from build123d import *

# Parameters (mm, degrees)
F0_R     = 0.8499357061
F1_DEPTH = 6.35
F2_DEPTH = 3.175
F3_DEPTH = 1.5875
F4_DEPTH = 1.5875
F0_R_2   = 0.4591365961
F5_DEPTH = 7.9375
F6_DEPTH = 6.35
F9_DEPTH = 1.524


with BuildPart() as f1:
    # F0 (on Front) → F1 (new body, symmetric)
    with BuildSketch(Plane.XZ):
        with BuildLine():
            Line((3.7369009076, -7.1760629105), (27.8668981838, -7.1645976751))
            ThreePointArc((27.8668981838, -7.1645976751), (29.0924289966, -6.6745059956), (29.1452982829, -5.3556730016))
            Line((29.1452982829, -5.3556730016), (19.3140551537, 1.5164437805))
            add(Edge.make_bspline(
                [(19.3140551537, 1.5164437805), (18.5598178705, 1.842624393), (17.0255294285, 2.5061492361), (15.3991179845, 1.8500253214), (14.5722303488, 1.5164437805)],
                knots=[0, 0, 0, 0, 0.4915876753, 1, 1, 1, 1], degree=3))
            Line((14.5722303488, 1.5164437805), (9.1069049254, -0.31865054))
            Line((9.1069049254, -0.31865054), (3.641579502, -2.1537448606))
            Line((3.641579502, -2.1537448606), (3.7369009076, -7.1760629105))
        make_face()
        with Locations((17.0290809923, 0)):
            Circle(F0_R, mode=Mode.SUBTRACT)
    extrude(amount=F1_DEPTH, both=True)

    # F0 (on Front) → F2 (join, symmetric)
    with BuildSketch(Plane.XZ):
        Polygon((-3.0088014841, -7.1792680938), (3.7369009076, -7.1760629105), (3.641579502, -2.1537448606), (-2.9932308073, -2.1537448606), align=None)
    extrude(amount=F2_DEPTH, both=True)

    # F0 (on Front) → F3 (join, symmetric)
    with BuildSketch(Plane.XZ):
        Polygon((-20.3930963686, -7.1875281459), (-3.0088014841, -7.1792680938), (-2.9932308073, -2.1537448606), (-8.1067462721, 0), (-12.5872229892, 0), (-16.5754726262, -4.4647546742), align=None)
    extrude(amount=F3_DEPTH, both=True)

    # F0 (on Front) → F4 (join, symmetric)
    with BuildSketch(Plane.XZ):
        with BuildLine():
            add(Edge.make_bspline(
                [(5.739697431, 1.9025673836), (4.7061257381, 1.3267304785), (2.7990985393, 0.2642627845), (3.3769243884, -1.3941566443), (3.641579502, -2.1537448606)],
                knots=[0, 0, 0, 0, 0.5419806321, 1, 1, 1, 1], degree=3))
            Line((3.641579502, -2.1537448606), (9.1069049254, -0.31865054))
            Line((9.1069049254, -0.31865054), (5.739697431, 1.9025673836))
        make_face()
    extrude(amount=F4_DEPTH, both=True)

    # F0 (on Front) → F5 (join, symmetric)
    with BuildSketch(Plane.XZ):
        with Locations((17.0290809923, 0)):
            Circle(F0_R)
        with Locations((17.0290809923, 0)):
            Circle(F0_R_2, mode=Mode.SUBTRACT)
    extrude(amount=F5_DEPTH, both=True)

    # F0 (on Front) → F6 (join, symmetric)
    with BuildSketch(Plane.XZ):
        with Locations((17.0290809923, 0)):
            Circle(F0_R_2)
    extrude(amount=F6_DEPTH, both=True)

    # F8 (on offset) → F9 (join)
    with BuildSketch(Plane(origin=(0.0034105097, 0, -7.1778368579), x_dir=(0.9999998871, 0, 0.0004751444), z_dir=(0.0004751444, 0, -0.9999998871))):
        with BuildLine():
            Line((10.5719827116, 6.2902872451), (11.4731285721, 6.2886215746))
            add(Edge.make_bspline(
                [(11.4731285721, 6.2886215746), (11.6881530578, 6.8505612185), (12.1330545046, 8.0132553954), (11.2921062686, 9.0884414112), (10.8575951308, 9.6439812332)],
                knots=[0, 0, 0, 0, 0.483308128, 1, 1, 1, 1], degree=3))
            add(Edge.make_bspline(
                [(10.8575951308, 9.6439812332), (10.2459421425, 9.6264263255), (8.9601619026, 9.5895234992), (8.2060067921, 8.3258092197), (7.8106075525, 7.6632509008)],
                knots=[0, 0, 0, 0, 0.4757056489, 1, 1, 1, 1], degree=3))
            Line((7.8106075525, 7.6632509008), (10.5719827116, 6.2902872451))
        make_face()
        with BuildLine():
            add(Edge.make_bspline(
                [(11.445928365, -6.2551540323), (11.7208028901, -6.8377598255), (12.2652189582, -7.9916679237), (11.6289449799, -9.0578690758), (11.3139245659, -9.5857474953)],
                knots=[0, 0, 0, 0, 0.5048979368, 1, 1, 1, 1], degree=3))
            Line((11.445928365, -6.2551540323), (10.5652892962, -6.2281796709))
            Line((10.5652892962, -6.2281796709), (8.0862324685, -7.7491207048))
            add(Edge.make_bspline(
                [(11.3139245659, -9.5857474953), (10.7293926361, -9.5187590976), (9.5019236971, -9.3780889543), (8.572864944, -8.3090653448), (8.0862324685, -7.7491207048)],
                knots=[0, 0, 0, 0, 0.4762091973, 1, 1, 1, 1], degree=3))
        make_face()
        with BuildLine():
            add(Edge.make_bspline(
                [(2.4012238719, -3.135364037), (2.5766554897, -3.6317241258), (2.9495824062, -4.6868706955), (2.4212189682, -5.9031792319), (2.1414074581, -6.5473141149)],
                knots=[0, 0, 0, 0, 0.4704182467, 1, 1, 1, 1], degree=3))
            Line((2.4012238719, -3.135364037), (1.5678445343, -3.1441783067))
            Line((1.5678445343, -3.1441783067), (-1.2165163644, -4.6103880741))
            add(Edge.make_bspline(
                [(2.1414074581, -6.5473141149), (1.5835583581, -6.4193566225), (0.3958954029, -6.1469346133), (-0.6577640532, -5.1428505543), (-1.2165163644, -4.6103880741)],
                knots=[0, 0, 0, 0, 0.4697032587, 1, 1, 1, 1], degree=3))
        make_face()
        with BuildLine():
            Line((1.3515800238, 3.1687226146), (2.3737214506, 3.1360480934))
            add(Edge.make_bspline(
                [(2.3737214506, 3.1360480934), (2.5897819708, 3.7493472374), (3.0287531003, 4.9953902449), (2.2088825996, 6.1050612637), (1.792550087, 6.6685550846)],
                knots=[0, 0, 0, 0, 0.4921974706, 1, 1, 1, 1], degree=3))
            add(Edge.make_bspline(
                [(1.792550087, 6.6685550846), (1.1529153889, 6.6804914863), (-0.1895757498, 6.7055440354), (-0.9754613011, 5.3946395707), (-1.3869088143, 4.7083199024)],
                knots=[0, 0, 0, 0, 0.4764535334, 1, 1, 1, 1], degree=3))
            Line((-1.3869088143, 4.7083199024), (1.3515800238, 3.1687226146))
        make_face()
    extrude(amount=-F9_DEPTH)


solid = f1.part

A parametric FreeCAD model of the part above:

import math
import FreeCAD as App
import Part
import Sketcher
from FreeCAD import Vector
Q = App.Units.Quantity


def add_polygon(sketch, points):
    """Adds a closed chain of lines whose ends are joined by coincident constraints."""
    first, n = sketch.GeometryCount, len(points)
    for a, b in zip(points, points[1:] + points[:1]):
        sketch.addGeometry(Part.LineSegment(App.Vector(*a, 0), App.Vector(*b, 0)), False)
    for i in range(n):
        sketch.addConstraint(Sketcher.Constraint("Coincident", first + i, 2, first + (i + 1) % n, 1))

doc = App.newDocument("Part")
body = doc.addObject("PartDesign::Body", "Body")

# Sketch on XZ plane
sketch1 = doc.addObject("Sketcher::SketchObject", "Sketch")
body.addObject(sketch1)
sketch1.AttachmentSupport = (doc.XZ_Plane, [""])
sketch1.MapMode = "FlatFace"
sketch1.addGeometry(Part.LineSegment(Vector(3.736901, -7.176063, 0), Vector(27.866898, -7.164598, 0)), False)
sketch1.addGeometry(Part.ArcOfCircle(Part.Circle(Vector(28.101661, -5.974312, 0), Vector(0, 0, 1), 1.213216), math.radians(-101.15736), math.radians(30.658266)), False)
sketch1.addGeometry(Part.LineSegment(Vector(29.145298, -5.355673, 0), Vector(19.314055, 1.516444, 0)), False)
sketch1.addGeometry(Part.BSplineCurve([Vector(19.314055, 1.516444, 0), Vector(18.559818, 1.842624, 0), Vector(17.025529, 2.506149, 0), Vector(15.399118, 1.850025, 0), Vector(14.57223, 1.516444, 0)], [4, 1, 4], [0, 0.491587675, 1], False, 3, [1, 1, 1, 1, 1], False), False)
sketch1.addGeometry(Part.LineSegment(Vector(14.57223, 1.516444, 0), Vector(9.106905, -0.318651, 0)), False)
sketch1.addGeometry(Part.LineSegment(Vector(9.106905, -0.318651, 0), Vector(3.64158, -2.153745, 0)), False)
sketch1.addGeometry(Part.LineSegment(Vector(3.64158, -2.153745, 0), Vector(3.736901, -7.176063, 0)), False)
sketch1.addGeometry(Part.Circle(Vector(17.029081, 0, 0), Vector(0, 0, 1), 0.849936), False)
sketch1.addConstraint(Sketcher.Constraint("Block", 3))
sketch1.addConstraint(Sketcher.Constraint("Coincident", 0, 2, 1, 1))
sketch1.addConstraint(Sketcher.Constraint("Coincident", 1, 2, 2, 1))
sketch1.addConstraint(Sketcher.Constraint("Coincident", 2, 2, 3, 1))
sketch1.addConstraint(Sketcher.Constraint("Coincident", 3, 2, 4, 1))
sketch1.addConstraint(Sketcher.Constraint("Coincident", 4, 2, 5, 1))
sketch1.addConstraint(Sketcher.Constraint("Coincident", 5, 2, 6, 1))
sketch1.addConstraint(Sketcher.Constraint("Coincident", 6, 2, 0, 1))
sketch1.addConstraint(Sketcher.Constraint("PointOnObject", 7, 3, -1))
sketch1.addConstraint(Sketcher.Constraint("Distance", 0, Q("0.95 in")))
sketch1.addConstraint(Sketcher.Constraint("Diameter", 7, Q("1.699871 mm")))
sketch1.addConstraint(Sketcher.Constraint("Radius", 1, Q("1.213216 mm")))
sketch1.addConstraint(Sketcher.Constraint("DistanceX", -1, 1, 0, 2, Q("27.866898 mm")))
sketch1.addConstraint(Sketcher.Constraint("DistanceX", -1, 1, 1, 2, Q("29.145298 mm")))
sketch1.addConstraint(Sketcher.Constraint("DistanceX", 5, 2, 7, 3, Q("13.387501 mm")))
sketch1.addConstraint(Sketcher.Constraint("Distance", 2, Q("11.994971 mm")))
sketch1.addConstraint(Sketcher.Constraint("DistanceX", -1, 1, 1, 3, Q("28.101661 mm")))
sketch1.addConstraint(Sketcher.Constraint("DistanceX", -1, 1, 7, 3, Q("17.029081 mm")))
sketch1.addConstraint(Sketcher.Constraint("DistanceY", 4, 2, -1, 1, Q("0.318651 mm")))
sketch1.addConstraint(Sketcher.Constraint("DistanceX", 4, 2, 2, 2, Q("10.20715 mm")))
sketch1.addConstraint(Sketcher.Constraint("DistanceY", 5, 2, 2, 2, Q("3.670189 mm")))
sketch1.addConstraint(Sketcher.Constraint("DistanceY", 6, 2, 5, 2, Q("5.022318 mm")))
pad1 = doc.addObject("PartDesign::Pad", "Pad")
body.addObject(pad1)
pad1.Profile = sketch1
pad1.Length = Q("0.5 in")
pad1.Midplane = True

# Sketch on XZ plane
sketch2 = doc.addObject("Sketcher::SketchObject", "Sketch001")
body.addObject(sketch2)
sketch2.AttachmentSupport = (doc.XZ_Plane, [""])
sketch2.MapMode = "FlatFace"
add_polygon(sketch2, [(-3.008801, -7.179268), (3.736901, -7.176063), (3.64158, -2.153745), (-2.993231, -2.153745)])  # lines 0-3
sketch2.addConstraint(Sketcher.Constraint("Horizontal", 2))
sketch2.addConstraint(Sketcher.Constraint("DistanceX", 2, 2, 2, 1, Q("6.63481 mm")))
sketch2.addConstraint(Sketcher.Constraint("DistanceX", -1, 1, 0, 2, Q("3.736901 mm")))
sketch2.addConstraint(Sketcher.Constraint("DistanceX", 3, 2, -1, 1, Q("3.008801 mm")))
sketch2.addConstraint(Sketcher.Constraint("DistanceX", -1, 1, 1, 2, Q("3.64158 mm")))
sketch2.addConstraint(Sketcher.Constraint("DistanceY", 3, 2, -1, 1, Q("7.179268 mm")))
sketch2.addConstraint(Sketcher.Constraint("DistanceY", 0, 2, 1, 2, Q("5.022318 mm")))
sketch2.addConstraint(Sketcher.Constraint("Distance", 3, Q("5.025547 mm")))
pad2 = doc.addObject("PartDesign::Pad", "Pad001")
body.addObject(pad2)
pad2.Profile = sketch2
pad2.Length = Q("0.25 in")
pad2.Midplane = True

# Sketch on XZ plane
sketch3 = doc.addObject("Sketcher::SketchObject", "Sketch002")
body.addObject(sketch3)
sketch3.AttachmentSupport = (doc.XZ_Plane, [""])
sketch3.MapMode = "FlatFace"
add_polygon(sketch3, [(-20.393096, -7.187528), (-3.008801, -7.179268), (-2.993231, -2.153745), (-8.106746, 0), (-12.587223, 0), (-16.575473, -4.464755)])  # lines 0-5
sketch3.addConstraint(Sketcher.Constraint("Horizontal", 3))
sketch3.addConstraint(Sketcher.Constraint("PointOnObject", 2, 2, -1))
sketch3.addConstraint(Sketcher.Constraint("DistanceX", 5, 2, 4, 2, Q("0.1503001 in")))
sketch3.addConstraint(Sketcher.Constraint("DistanceX", 0, 2, -1, 1, Q("3.008801 mm")))
sketch3.addConstraint(Sketcher.Constraint("Distance", 5, Q("4.689109 mm")))
sketch3.addConstraint(Sketcher.Constraint("DistanceX", 3, 2, 3, 1, Q("4.480477 mm")))
sketch3.addConstraint(Sketcher.Constraint("DistanceY", 0, 2, -1, 1, Q("7.179268 mm")))
sketch3.addConstraint(Sketcher.Constraint("DistanceX", 1, 2, -1, 1, Q("2.993231 mm")))
sketch3.addConstraint(Sketcher.Constraint("DistanceY", 5, 2, -1, 1, Q("7.187528 mm")))
sketch3.addConstraint(Sketcher.Constraint("DistanceX", 3, 2, 0, 2, Q("9.578422 mm")))
sketch3.addConstraint(Sketcher.Constraint("DistanceX", 4, 2, 3, 2, Q("3.98825 mm")))
sketch3.addConstraint(Sketcher.Constraint("DistanceY", 4, 2, 1, 2, Q("2.31101 mm")))
pad3 = doc.addObject("PartDesign::Pad", "Pad002")
body.addObject(pad3)
pad3.Profile = sketch3
pad3.Length = Q("0.125 in")
pad3.Midplane = True

# Sketch on XZ plane
sketch4 = doc.addObject("Sketcher::SketchObject", "Sketch003")
body.addObject(sketch4)
sketch4.AttachmentSupport = (doc.XZ_Plane, [""])
sketch4.MapMode = "FlatFace"
sketch4.addGeometry(Part.BSplineCurve([Vector(5.739697, 1.902567, 0), Vector(4.706126, 1.32673, 0), Vector(2.799099, 0.264263, 0), Vector(3.376924, -1.394157, 0), Vector(3.64158, -2.153745, 0)], [4, 1, 4], [0, 0.541980632, 1], False, 3, [1, 1, 1, 1, 1], False), False)
sketch4.addGeometry(Part.LineSegment(Vector(3.64158, -2.153745, 0), Vector(9.106905, -0.318651, 0)), False)
sketch4.addGeometry(Part.LineSegment(Vector(9.106905, -0.318651, 0), Vector(5.739697, 1.902567, 0)), False)
sketch4.addConstraint(Sketcher.Constraint("Block", 0))
sketch4.addConstraint(Sketcher.Constraint("Coincident", 0, 2, 1, 1))
sketch4.addConstraint(Sketcher.Constraint("Coincident", 1, 2, 2, 1))
sketch4.addConstraint(Sketcher.Constraint("Coincident", 2, 2, 0, 1))
sketch4.addConstraint(Sketcher.Constraint("DistanceY", 1, 2, -1, 1, Q("0.318651 mm")))
sketch4.addConstraint(Sketcher.Constraint("Distance", 1, Q("5.765185 mm")))
pad4 = doc.addObject("PartDesign::Pad", "Pad003")
body.addObject(pad4)
pad4.Profile = sketch4
pad4.Length = Q("0.125 in")
pad4.Midplane = True

# Sketch on XZ plane
sketch5 = doc.addObject("Sketcher::SketchObject", "Sketch004")
body.addObject(sketch5)
sketch5.AttachmentSupport = (doc.XZ_Plane, [""])
sketch5.MapMode = "FlatFace"
sketch5.addGeometry(Part.Circle(Vector(17.029081, 0, 0), Vector(0, 0, 1), 0.849936), False)
sketch5.addGeometry(Part.Circle(Vector(17.029081, 0, 0), Vector(0, 0, 1), 0.459137), False)
sketch5.addConstraint(Sketcher.Constraint("Coincident", 1, 3, 0, 3))
sketch5.addConstraint(Sketcher.Constraint("PointOnObject", 0, 3, -1))
sketch5.addConstraint(Sketcher.Constraint("Diameter", 0, Q("1.699871 mm")))
sketch5.addConstraint(Sketcher.Constraint("Diameter", 1, Q("0.918273 mm")))
sketch5.addConstraint(Sketcher.Constraint("DistanceX", -1, 1, 0, 3, Q("17.029081 mm")))
pad5 = doc.addObject("PartDesign::Pad", "Pad004")
body.addObject(pad5)
pad5.Profile = sketch5
pad5.Length = Q("0.625 in")
pad5.Midplane = True

# Sketch on XZ plane
sketch6 = doc.addObject("Sketcher::SketchObject", "Sketch005")
body.addObject(sketch6)
sketch6.AttachmentSupport = (doc.XZ_Plane, [""])
sketch6.MapMode = "FlatFace"
sketch6.addGeometry(Part.Circle(Vector(17.029081, 0, 0), Vector(0, 0, 1), 0.459137), False)
sketch6.addConstraint(Sketcher.Constraint("PointOnObject", 0, 3, -1))
sketch6.addConstraint(Sketcher.Constraint("Diameter", 0, Q("0.918273 mm")))
sketch6.addConstraint(Sketcher.Constraint("DistanceX", -1, 1, 0, 3, Q("17.029081 mm")))
pad6 = doc.addObject("PartDesign::Pad", "Pad005")
body.addObject(pad6)
pad6.Profile = sketch6
pad6.Length = Q("0.5 in")
pad6.Midplane = True

# Sketch on an angled plane
sketch7 = doc.addObject("Sketcher::SketchObject", "Sketch006")
body.addObject(sketch7)
sketch7.Placement = App.Placement(Vector(0.003411, 0, -7.177837), App.Rotation(Vector(0.999999887, 0, 0.000475144), Vector(0, -1, 0), Vector(0.000475144, 0, -0.999999887), "ZXY"))
sketch7.addGeometry(Part.LineSegment(Vector(10.571983, 6.290287, 0), Vector(11.473129, 6.288622, 0)), False)
sketch7.addGeometry(Part.BSplineCurve([Vector(11.473129, 6.288622, 0), Vector(11.688153, 6.850561, 0), Vector(12.133055, 8.013255, 0), Vector(11.292106, 9.088441, 0), Vector(10.857595, 9.643981, 0)], [4, 1, 4], [0, 0.483308128, 1], False, 3, [1, 1, 1, 1, 1], False), False)
sketch7.addGeometry(Part.BSplineCurve([Vector(10.857595, 9.643981, 0), Vector(10.245942, 9.626426, 0), Vector(8.960162, 9.589523, 0), Vector(8.206007, 8.325809, 0), Vector(7.810608, 7.663251, 0)], [4, 1, 4], [0, 0.475705649, 1], False, 3, [1, 1, 1, 1, 1], False), False)
sketch7.addGeometry(Part.LineSegment(Vector(7.810608, 7.663251, 0), Vector(10.571983, 6.290287, 0)), False)
sketch7.addGeometry(Part.BSplineCurve([Vector(11.445928, -6.255154, 0), Vector(11.720803, -6.83776, 0), Vector(12.265219, -7.991668, 0), Vector(11.628945, -9.057869, 0), Vector(11.313925, -9.585747, 0)], [4, 1, 4], [0, 0.504897937, 1], False, 3, [1, 1, 1, 1, 1], False), False)
sketch7.addGeometry(Part.LineSegment(Vector(11.445928, -6.255154, 0), Vector(10.565289, -6.22818, 0)), False)
sketch7.addGeometry(Part.LineSegment(Vector(10.565289, -6.22818, 0), Vector(8.086232, -7.749121, 0)), False)
sketch7.addGeometry(Part.BSplineCurve([Vector(11.313925, -9.585747, 0), Vector(10.729393, -9.518759, 0), Vector(9.501924, -9.378089, 0), Vector(8.572865, -8.309065, 0), Vector(8.086232, -7.749121, 0)], [4, 1, 4], [0, 0.476209197, 1], False, 3, [1, 1, 1, 1, 1], False), False)
sketch7.addGeometry(Part.BSplineCurve([Vector(2.401224, -3.135364, 0), Vector(2.576655, -3.631724, 0), Vector(2.949582, -4.686871, 0), Vector(2.421219, -5.903179, 0), Vector(2.141407, -6.547314, 0)], [4, 1, 4], [0, 0.470418247, 1], False, 3, [1, 1, 1, 1, 1], False), False)
sketch7.addGeometry(Part.LineSegment(Vector(2.401224, -3.135364, 0), Vector(1.567845, -3.144178, 0)), False)
sketch7.addGeometry(Part.LineSegment(Vector(1.567845, -3.144178, 0), Vector(-1.216516, -4.610388, 0)), False)
sketch7.addGeometry(Part.BSplineCurve([Vector(2.141407, -6.547314, 0), Vector(1.583558, -6.419357, 0), Vector(0.395895, -6.146935, 0), Vector(-0.657764, -5.142851, 0), Vector(-1.216516, -4.610388, 0)], [4, 1, 4], [0, 0.469703259, 1], False, 3, [1, 1, 1, 1, 1], False), False)
sketch7.addGeometry(Part.LineSegment(Vector(1.35158, 3.168723, 0), Vector(2.373721, 3.136048, 0)), False)
sketch7.addGeometry(Part.BSplineCurve([Vector(2.373721, 3.136048, 0), Vector(2.589782, 3.749347, 0), Vector(3.028753, 4.99539, 0), Vector(2.208883, 6.105061, 0), Vector(1.79255, 6.668555, 0)], [4, 1, 4], [0, 0.492197471, 1], False, 3, [1, 1, 1, 1, 1], False), False)
sketch7.addGeometry(Part.BSplineCurve([Vector(1.79255, 6.668555, 0), Vector(1.152915, 6.680491, 0), Vector(-0.189576, 6.705544, 0), Vector(-0.975461, 5.39464, 0), Vector(-1.386909, 4.70832, 0)], [4, 1, 4], [0, 0.476453533, 1], False, 3, [1, 1, 1, 1, 1], False), False)
sketch7.addGeometry(Part.LineSegment(Vector(-1.386909, 4.70832, 0), Vector(1.35158, 3.168723, 0)), False)
sketch7.addConstraint(Sketcher.Constraint("Block", 1))
sketch7.addConstraint(Sketcher.Constraint("Block", 2))
sketch7.addConstraint(Sketcher.Constraint("Block", 4))
sketch7.addConstraint(Sketcher.Constraint("Block", 7))
sketch7.addConstraint(Sketcher.Constraint("Block", 8))
sketch7.addConstraint(Sketcher.Constraint("Block", 11))
sketch7.addConstraint(Sketcher.Constraint("Block", 13))
sketch7.addConstraint(Sketcher.Constraint("Block", 14))
sketch7.addConstraint(Sketcher.Constraint("Coincident", 0, 2, 1, 1))
sketch7.addConstraint(Sketcher.Constraint("Coincident", 2, 2, 3, 1))
sketch7.addConstraint(Sketcher.Constraint("Coincident", 3, 2, 0, 1))
sketch7.addConstraint(Sketcher.Constraint("Coincident", 4, 1, 5, 1))
sketch7.addConstraint(Sketcher.Constraint("Coincident", 5, 2, 6, 1))
sketch7.addConstraint(Sketcher.Constraint("Coincident", 6, 2, 7, 2))
sketch7.addConstraint(Sketcher.Constraint("Coincident", 8, 1, 9, 1))
sketch7.addConstraint(Sketcher.Constraint("Coincident", 9, 2, 10, 1))
sketch7.addConstraint(Sketcher.Constraint("Coincident", 10, 2, 11, 2))
sketch7.addConstraint(Sketcher.Constraint("Coincident", 12, 2, 13, 1))
sketch7.addConstraint(Sketcher.Constraint("Coincident", 14, 2, 15, 1))
sketch7.addConstraint(Sketcher.Constraint("Coincident", 15, 2, 12, 1))
sketch7.addConstraint(Sketcher.Constraint("DistanceY", 5, 2, 0, 2, Q("12.516801 mm")))
sketch7.addConstraint(Sketcher.Constraint("DistanceY", 5, 2, 9, 2, Q("3.084001 mm")))
sketch7.addConstraint(Sketcher.Constraint("DistanceX", 10, 2, 3, 2, Q("11.788499 mm")))
sketch7.addConstraint(Sketcher.Constraint("DistanceY", 9, 2, 15, 2, Q("6.312901 mm")))
sketch7.addConstraint(Sketcher.Constraint("DistanceX", -1, 1, 5, 2, Q("10.565289 mm")))
sketch7.addConstraint(Sketcher.Constraint("DistanceX", -1, 1, 15, 2, Q("1.35158 mm")))
sketch7.addConstraint(Sketcher.Constraint("DistanceX", 9, 2, 3, 2, Q("9.004138 mm")))
sketch7.addConstraint(Sketcher.Constraint("DistanceY", 12, 2, 3, 2, Q("3.154239 mm")))
pad7 = doc.addObject("PartDesign::Pad", "Pad006")
body.addObject(pad7)
pad7.Profile = sketch7
pad7.Length = Q("0.06 in")
pad7.Reversed = True

doc.recompute()
